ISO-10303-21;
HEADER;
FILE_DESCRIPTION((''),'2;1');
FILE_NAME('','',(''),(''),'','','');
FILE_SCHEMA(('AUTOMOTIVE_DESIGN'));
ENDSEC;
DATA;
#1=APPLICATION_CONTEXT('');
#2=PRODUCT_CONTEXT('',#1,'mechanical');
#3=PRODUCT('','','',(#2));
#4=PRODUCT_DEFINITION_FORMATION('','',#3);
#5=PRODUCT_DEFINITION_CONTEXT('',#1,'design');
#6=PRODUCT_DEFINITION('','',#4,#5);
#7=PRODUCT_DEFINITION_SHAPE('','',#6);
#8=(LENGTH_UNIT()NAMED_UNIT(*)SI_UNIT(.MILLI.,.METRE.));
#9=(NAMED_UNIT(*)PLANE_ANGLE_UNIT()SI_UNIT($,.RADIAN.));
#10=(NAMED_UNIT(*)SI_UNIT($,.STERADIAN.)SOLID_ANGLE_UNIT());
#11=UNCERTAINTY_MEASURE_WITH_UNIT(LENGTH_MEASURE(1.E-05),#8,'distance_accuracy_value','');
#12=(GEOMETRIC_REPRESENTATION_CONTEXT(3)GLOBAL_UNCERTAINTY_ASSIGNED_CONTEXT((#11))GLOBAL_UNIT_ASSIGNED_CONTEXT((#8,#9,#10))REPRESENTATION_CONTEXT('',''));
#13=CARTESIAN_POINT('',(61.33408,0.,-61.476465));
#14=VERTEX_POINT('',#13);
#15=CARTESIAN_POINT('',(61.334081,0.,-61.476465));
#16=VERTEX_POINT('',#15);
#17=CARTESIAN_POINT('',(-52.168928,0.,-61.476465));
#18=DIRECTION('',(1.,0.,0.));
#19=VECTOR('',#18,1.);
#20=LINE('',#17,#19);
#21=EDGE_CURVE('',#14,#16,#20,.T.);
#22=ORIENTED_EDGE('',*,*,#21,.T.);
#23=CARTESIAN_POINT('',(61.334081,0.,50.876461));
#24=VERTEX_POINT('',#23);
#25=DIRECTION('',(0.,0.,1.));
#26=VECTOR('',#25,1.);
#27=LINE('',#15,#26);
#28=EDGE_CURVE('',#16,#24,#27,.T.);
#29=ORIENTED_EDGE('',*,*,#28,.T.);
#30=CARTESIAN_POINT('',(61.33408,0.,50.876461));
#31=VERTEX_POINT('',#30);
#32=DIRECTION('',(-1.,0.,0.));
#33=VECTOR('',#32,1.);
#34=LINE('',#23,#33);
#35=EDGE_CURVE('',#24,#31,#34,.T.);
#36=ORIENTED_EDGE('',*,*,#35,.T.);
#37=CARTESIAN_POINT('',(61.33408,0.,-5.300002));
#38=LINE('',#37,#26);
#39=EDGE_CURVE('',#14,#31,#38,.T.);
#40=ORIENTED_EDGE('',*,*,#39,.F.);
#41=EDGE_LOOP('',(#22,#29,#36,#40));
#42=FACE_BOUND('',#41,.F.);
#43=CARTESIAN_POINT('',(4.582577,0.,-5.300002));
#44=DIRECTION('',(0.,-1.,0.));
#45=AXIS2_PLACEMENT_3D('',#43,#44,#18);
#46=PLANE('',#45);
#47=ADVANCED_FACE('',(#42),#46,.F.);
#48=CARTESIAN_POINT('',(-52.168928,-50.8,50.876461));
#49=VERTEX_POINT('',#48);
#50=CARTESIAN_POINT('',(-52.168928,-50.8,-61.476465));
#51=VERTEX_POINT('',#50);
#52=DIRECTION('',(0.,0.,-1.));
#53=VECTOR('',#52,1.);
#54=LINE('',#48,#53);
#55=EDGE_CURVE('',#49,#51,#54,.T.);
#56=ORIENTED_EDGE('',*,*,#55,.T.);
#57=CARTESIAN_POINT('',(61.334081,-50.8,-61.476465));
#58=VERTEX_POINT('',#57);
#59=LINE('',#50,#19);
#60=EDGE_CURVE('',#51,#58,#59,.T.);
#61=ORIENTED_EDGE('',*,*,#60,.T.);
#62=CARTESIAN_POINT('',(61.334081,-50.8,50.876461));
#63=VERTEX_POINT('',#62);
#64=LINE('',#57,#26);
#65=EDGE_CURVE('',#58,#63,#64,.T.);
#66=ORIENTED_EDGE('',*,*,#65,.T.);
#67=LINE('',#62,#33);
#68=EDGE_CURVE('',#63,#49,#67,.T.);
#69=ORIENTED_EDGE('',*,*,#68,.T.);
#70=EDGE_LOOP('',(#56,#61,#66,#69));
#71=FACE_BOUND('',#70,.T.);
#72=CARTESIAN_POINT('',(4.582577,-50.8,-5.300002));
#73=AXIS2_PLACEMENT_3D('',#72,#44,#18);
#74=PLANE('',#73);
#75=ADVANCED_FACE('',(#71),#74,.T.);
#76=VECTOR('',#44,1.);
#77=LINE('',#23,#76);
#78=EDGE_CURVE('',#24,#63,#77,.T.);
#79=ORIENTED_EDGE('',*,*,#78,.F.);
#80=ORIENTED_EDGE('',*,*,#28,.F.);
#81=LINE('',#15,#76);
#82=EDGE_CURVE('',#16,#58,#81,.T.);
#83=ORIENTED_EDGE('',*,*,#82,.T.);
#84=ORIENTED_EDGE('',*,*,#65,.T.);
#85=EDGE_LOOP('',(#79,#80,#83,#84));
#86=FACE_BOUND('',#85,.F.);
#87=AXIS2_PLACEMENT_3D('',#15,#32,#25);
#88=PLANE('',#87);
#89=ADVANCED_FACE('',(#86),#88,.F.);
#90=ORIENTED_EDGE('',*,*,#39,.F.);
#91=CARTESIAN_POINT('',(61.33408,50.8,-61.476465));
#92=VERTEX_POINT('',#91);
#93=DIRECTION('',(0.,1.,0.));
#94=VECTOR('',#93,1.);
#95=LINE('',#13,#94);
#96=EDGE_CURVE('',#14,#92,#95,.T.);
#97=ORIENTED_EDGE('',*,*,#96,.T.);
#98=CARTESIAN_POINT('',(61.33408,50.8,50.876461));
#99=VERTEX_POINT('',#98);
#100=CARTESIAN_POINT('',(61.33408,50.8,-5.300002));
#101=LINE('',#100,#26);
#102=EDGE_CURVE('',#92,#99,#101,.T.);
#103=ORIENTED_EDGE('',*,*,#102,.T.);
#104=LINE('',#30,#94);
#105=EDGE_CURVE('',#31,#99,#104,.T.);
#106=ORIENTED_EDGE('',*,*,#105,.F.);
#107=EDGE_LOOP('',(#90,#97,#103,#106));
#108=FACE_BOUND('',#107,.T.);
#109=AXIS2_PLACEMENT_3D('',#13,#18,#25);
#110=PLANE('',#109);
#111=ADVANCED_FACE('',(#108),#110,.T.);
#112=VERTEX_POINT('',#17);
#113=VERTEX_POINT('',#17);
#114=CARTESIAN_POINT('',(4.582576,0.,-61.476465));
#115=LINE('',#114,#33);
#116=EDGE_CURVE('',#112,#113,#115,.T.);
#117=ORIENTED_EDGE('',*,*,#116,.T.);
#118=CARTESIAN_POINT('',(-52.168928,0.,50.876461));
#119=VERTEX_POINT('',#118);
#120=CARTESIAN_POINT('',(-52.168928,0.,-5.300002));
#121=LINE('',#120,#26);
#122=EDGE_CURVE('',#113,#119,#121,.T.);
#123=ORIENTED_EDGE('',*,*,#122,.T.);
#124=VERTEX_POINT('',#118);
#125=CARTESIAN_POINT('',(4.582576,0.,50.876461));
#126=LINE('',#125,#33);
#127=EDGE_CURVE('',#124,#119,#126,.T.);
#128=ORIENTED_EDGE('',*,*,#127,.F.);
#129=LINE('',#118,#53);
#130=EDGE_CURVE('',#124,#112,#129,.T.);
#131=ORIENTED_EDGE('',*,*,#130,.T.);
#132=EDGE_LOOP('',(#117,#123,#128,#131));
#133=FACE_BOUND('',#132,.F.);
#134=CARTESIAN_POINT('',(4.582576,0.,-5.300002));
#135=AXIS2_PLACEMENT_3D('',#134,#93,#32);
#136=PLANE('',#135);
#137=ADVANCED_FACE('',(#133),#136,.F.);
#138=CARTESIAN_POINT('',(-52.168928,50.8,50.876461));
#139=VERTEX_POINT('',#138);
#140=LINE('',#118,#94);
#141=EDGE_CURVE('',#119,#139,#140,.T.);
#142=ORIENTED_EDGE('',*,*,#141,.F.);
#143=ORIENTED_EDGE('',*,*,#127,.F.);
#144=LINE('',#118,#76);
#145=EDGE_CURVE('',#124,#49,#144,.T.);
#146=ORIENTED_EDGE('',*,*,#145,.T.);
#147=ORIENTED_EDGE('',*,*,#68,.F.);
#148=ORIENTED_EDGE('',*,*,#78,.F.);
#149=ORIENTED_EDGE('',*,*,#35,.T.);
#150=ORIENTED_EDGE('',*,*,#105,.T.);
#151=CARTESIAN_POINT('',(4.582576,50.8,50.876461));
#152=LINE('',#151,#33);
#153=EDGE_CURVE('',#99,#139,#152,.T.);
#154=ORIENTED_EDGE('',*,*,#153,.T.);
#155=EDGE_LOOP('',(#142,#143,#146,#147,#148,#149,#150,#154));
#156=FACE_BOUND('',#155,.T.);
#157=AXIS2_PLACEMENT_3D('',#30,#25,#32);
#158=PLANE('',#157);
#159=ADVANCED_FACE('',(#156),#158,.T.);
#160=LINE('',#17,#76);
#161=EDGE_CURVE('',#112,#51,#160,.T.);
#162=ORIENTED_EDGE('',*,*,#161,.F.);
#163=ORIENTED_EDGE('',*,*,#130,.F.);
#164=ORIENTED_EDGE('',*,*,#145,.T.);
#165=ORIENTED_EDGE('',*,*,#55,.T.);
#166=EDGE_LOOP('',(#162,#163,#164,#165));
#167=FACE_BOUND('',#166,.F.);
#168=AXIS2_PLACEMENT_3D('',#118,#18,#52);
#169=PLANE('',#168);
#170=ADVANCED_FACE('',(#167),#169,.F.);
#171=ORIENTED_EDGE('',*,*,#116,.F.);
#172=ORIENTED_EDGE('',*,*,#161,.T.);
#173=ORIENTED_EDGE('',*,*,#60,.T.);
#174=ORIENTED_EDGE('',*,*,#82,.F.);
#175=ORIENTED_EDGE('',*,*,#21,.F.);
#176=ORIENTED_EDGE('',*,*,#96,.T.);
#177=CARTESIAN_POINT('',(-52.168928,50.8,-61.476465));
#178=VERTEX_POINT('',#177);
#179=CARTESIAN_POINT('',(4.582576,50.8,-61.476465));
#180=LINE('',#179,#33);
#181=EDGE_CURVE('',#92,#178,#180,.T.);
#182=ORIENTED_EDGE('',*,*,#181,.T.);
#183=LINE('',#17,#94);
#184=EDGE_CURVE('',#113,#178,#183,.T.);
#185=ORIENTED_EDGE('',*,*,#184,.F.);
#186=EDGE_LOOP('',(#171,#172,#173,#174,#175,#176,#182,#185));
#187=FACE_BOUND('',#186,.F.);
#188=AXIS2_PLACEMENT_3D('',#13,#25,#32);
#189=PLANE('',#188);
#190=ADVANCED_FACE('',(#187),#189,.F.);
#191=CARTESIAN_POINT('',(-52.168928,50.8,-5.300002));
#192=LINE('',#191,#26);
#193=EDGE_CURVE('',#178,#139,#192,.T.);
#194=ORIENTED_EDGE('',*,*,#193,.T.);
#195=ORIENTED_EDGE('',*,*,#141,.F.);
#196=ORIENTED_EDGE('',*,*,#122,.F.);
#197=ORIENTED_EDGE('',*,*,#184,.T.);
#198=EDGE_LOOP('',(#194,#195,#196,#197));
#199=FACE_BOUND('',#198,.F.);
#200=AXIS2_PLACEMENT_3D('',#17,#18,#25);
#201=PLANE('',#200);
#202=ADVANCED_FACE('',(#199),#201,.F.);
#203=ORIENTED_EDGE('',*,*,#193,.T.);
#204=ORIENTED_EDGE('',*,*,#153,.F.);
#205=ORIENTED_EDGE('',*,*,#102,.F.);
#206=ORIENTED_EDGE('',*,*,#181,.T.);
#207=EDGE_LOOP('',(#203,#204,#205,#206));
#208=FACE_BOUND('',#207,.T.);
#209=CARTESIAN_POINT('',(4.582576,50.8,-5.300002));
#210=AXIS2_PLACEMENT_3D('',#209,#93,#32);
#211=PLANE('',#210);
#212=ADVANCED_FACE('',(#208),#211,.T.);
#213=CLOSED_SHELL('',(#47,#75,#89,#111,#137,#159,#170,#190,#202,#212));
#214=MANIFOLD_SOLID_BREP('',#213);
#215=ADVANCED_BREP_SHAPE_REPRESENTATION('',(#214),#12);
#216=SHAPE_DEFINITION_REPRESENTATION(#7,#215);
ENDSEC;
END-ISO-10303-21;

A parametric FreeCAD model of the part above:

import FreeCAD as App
import Part
import Sketcher
from FreeCAD import Vector
Q = App.Units.Quantity

doc = App.newDocument("Part")
body = doc.addObject("PartDesign::Body", "Body")

sketch1 = body.newObject("Sketcher::SketchObject", "Sketch")
sketch1.AttachmentSupport = (doc.getObject("XZ_Plane"), [""])
sketch1.MapMode = "FlatFace"
sketch1.addGeometry(Part.LineSegment(Vector(61, -61, 0), Vector(61, 51, 0)), False)
sketch1.addGeometry(Part.LineSegment(Vector(61, 51, 0), Vector(-52, 51, 0)), False)
sketch1.addGeometry(Part.LineSegment(Vector(-52, 51, 0), Vector(-52, -61, 0)), False)
sketch1.addGeometry(Part.LineSegment(Vector(-52, -61, 0), Vector(61, -61, 0)), False)
sketch1.addConstraint(Sketcher.Constraint("Coincident", 0, 2, 1, 1))
sketch1.addConstraint(Sketcher.Constraint("Coincident", 1, 2, 2, 1))
sketch1.addConstraint(Sketcher.Constraint("Coincident", 2, 2, 3, 1))
sketch1.addConstraint(Sketcher.Constraint("Coincident", 3, 2, 0, 1))
sketch1.addConstraint(Sketcher.Constraint("Vertical", 0))
sketch1.addConstraint(Sketcher.Constraint("Horizontal", 1))
sketch1.addConstraint(Sketcher.Constraint("Vertical", 2))
sketch1.addConstraint(Sketcher.Constraint("Horizontal", 3))
sketch1.addConstraint(Sketcher.Constraint("DistanceX", 1, 2, 1, 1, 113.503009))
sketch1.addConstraint(Sketcher.Constraint("DistanceY", 0, 1, 0, 2, 112.352926))
sketch1.addConstraint(Sketcher.Constraint("DistanceX", -1, 1, 0, 2, 61.334081))
sketch1.addConstraint(Sketcher.Constraint("DistanceY", -1, 1, 0, 2, 50.876461))
pad1 = body.newObject("PartDesign::Pad", "Pad")
pad1.Profile = sketch1
pad1.Length = Q("2 in")

sketch2 = body.newObject("Sketcher::SketchObject", "Sketch001")
sketch2.AttachmentSupport = (doc.getObject("XZ_Plane"), [""])
sketch2.MapMode = "FlatFace"
sketch2.addGeometry(Part.LineSegment(Vector(61, 51, 0), Vector(61, -61, 0)), False)
sketch2.addGeometry(Part.LineSegment(Vector(61, -61, 0), Vector(-52, -61, 0)), False)
sketch2.addGeometry(Part.LineSegment(Vector(-52, -61, 0), Vector(-52, 51, 0)), False)
sketch2.addGeometry(Part.LineSegment(Vector(-52, 51, 0), Vector(61, 51, 0)), False)
sketch2.addConstraint(Sketcher.Constraint("Coincident", 0, 2, 1, 1))
sketch2.addConstraint(Sketcher.Constraint("Coincident", 1, 2, 2, 1))
sketch2.addConstraint(Sketcher.Constraint("Coincident", 2, 2, 3, 1))
sketch2.addConstraint(Sketcher.Constraint("Coincident", 3, 2, 0, 1))
sketch2.addConstraint(Sketcher.Constraint("Vertical", 0))
sketch2.addConstraint(Sketcher.Constraint("Horizontal", 1))
sketch2.addConstraint(Sketcher.Constraint("Vertical", 2))
sketch2.addConstraint(Sketcher.Constraint("Horizontal", 3))
sketch2.addConstraint(Sketcher.Constraint("DistanceX", 1, 2, 1, 1, 113.503009))
sketch2.addConstraint(Sketcher.Constraint("DistanceY", 0, 2, 0, 1, 112.352926))
sketch2.addConstraint(Sketcher.Constraint("DistanceX", -1, 1, 0, 2, 61.33408))
sketch2.addConstraint(Sketcher.Constraint("DistanceY", -1, 1, 2, 2, 50.876461))
pad2 = body.newObject("PartDesign::Pad", "Pad001")
pad2.Profile = sketch2
pad2.Length = Q("2 in")
pad2.Reversed = True

doc.recompute()
